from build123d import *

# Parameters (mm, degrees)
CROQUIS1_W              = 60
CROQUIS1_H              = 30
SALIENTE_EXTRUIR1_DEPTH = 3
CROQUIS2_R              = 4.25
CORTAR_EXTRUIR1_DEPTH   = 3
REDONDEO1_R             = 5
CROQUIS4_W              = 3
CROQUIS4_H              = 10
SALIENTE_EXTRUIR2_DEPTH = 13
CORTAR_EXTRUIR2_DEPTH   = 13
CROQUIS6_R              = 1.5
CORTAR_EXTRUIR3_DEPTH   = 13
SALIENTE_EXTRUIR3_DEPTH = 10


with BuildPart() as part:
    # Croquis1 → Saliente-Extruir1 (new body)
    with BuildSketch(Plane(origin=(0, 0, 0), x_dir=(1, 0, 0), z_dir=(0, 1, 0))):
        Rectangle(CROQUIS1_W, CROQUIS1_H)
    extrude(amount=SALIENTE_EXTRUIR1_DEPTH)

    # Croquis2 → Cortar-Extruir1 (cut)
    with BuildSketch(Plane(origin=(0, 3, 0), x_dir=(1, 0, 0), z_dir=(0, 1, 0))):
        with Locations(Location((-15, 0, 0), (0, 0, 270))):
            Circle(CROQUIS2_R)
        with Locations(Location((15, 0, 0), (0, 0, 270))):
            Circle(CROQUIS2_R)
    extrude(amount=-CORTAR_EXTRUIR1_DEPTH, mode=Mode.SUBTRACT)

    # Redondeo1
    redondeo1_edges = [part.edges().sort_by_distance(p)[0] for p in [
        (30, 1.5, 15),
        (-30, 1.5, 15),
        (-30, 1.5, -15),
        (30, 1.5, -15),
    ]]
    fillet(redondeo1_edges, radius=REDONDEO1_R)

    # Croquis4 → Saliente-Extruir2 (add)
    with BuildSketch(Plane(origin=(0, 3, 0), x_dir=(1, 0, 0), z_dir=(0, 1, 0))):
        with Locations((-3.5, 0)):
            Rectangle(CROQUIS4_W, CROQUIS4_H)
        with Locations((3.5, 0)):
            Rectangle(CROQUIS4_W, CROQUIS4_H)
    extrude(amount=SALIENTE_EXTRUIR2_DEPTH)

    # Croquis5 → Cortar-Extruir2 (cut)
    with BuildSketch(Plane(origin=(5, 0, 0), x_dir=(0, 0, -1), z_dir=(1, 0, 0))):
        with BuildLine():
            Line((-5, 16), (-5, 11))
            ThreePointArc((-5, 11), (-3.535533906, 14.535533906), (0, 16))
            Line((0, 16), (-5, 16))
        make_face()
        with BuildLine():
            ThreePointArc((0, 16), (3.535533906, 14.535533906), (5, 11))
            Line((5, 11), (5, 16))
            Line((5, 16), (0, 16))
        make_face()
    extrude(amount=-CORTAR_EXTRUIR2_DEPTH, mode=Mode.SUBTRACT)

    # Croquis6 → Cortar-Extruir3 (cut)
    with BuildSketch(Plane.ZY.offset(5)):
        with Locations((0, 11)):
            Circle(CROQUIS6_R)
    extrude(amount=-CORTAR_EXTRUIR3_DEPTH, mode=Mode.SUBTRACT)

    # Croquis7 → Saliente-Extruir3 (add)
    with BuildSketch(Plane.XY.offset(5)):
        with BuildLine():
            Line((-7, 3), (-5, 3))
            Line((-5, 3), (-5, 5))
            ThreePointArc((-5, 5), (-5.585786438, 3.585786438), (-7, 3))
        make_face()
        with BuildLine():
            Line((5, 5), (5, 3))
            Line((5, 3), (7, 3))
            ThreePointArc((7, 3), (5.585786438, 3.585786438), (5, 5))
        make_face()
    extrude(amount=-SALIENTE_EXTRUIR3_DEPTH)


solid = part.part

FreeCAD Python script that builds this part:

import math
import FreeCAD as App
import Part
import Sketcher


def edges_at(feature, points):
    """Names of the edges that pass closest to the given points."""
    edges = feature.Shape.Edges
    near = lambda p: min(range(len(edges)), key=lambda i: edges[i].distToShape(Part.Vertex(*p))[0])
    return sorted({f"Edge{near(p) + 1}" for p in points})


def add_polygon(sketch, points):
    """Adds a closed chain of lines whose ends are joined by coincident constraints."""
    first, n = sketch.GeometryCount, len(points)
    for a, b in zip(points, points[1:] + points[:1]):
        sketch.addGeometry(Part.LineSegment(App.Vector(*a, 0), App.Vector(*b, 0)), False)
    for i in range(n):
        sketch.addConstraint(Sketcher.Constraint("Coincident", first + i, 2, first + (i + 1) % n, 1))

doc = App.newDocument("Part")
params = doc.addObject("Spreadsheet::Sheet", "Params")
for row, (alias, value) in enumerate([
    ("sketch1_width", "60 mm"),
    ("sketch1_height", "30 mm"),
    ("pad1_length", "3 mm"),
    ("sketch2_diameter", "8.5 mm"),
    ("pocket1_length", "3 mm"),
    ("fillet_radius", "5 mm"),
    ("sketch3_width", "3 mm"),
    ("sketch3_height", "10 mm"),
    ("pad2_length", "13 mm"),
    ("sketch4_radius", "5 mm"),
    ("pocket2_length", "13 mm"),
    ("sketch5_diameter", "3 mm"),
    ("pocket3_length", "13 mm"),
    ("sketch6_radius", "2 mm"),
    ("pad3_length", "10 mm"),
], start=1):
    params.set(f"A{row}", alias)
    params.set(f"B{row}", "=" + value)
    params.setAlias(f"B{row}", alias)

body = doc.addObject("PartDesign::Body", "Body")

# Sketch on XZ plane
sketch1 = doc.addObject("Sketcher::SketchObject", "Sketch")
body.addObject(sketch1)
sketch1.AttachmentSupport = (doc.XZ_Plane, [""])
sketch1.MapMode = "FlatFace"
add_polygon(sketch1, [(-30, -15), (-30, 15), (30, 15), (30, -15)])  # lines 0-3
sketch1.addConstraint(Sketcher.Constraint("Vertical", 0))
sketch1.addConstraint(Sketcher.Constraint("Horizontal", 1))
sketch1.addConstraint(Sketcher.Constraint("Vertical", 2))
sketch1.addConstraint(Sketcher.Constraint("Horizontal", 3))
sketch1.addConstraint(Sketcher.Constraint("Symmetric", 0, 2, 2, 2, -1, 1))
sketch1.addConstraint(Sketcher.Constraint("DistanceX", 1, 1, 1, 2, 60.0))
sketch1.addConstraint(Sketcher.Constraint("DistanceY", 0, 1, 0, 2, 30.0))
sketch1.setExpression("Constraints[9]", "Params.sketch1_width")
sketch1.setExpression("Constraints[10]", "Params.sketch1_height")
pad1 = doc.addObject("PartDesign::Pad", "Pad")
body.addObject(pad1)
pad1.Profile = sketch1
pad1.setExpression("Length", "Params.pad1_length")
pad1.Reversed = True

# Sketch on XZ plane
sketch2 = doc.addObject("Sketcher::SketchObject", "Sketch001")
body.addObject(sketch2)
sketch2.AttachmentSupport = (doc.XZ_Plane, [""])
sketch2.MapMode = "FlatFace"
sketch2.AttachmentOffset = App.Placement(App.Vector(0, 0, -3), App.Rotation())
sketch2.addGeometry(Part.Circle(App.Vector(-15, 0, 0), App.Vector(0, 0, 1), 4.25), False)
sketch2.addGeometry(Part.Circle(App.Vector(15, 0, 0), App.Vector(0, 0, 1), 4.25), False)
sketch2.addConstraint(Sketcher.Constraint("Equal", 0, 1))
sketch2.addConstraint(Sketcher.Constraint("Symmetric", 0, 3, 1, 3, -1, 1))
sketch2.addConstraint(Sketcher.Constraint("PointOnObject", 0, 3, -1))
sketch2.addConstraint(Sketcher.Constraint("Diameter", 0, 8.5))
sketch2.addConstraint(Sketcher.Constraint("DistanceX", 0, 3, -1, 1, 15.0))
sketch2.setExpression("Constraints[3]", "Params.sketch2_diameter")
pocket1 = doc.addObject("PartDesign::Pocket", "Pocket")
body.addObject(pocket1)
pocket1.Profile = sketch2
pocket1.setExpression("Length", "Params.pocket1_length")
pocket1.Reversed = True
doc.recompute()

fillet = doc.addObject("PartDesign::Fillet", "Fillet")
body.addObject(fillet)
fillet.Base = (pocket1, edges_at(pocket1, [
    (30, 1.5, 15),
    (-30, 1.5, 15),
    (-30, 1.5, -15),
    (30, 1.5, -15),
]))
fillet.setExpression("Radius", "Params.fillet_radius")

# Sketch on XZ plane
sketch3 = doc.addObject("Sketcher::SketchObject", "Sketch002")
body.addObject(sketch3)
sketch3.AttachmentSupport = (doc.XZ_Plane, [""])
sketch3.MapMode = "FlatFace"
sketch3.AttachmentOffset = App.Placement(App.Vector(0, 0, -3), App.Rotation())
add_polygon(sketch3, [(-5, -5), (-5, 5), (-2, 5), (-2, -5)])  # lines 0-3
add_polygon(sketch3, [(2, -5), (2, 5), (5, 5), (5, -5)])  # lines 4-7
sketch3.addConstraint(Sketcher.Constraint("Vertical", 0))
sketch3.addConstraint(Sketcher.Constraint("Horizontal", 1))
sketch3.addConstraint(Sketcher.Constraint("Vertical", 2))
sketch3.addConstraint(Sketcher.Constraint("Horizontal", 3))
sketch3.addConstraint(Sketcher.Constraint("Vertical", 4))
sketch3.addConstraint(Sketcher.Constraint("Horizontal", 5))
sketch3.addConstraint(Sketcher.Constraint("Vertical", 6))
sketch3.addConstraint(Sketcher.Constraint("Horizontal", 7))
sketch3.addConstraint(Sketcher.Constraint("Symmetric", 2, 2, 4, 2, -1, 1))
sketch3.addConstraint(Sketcher.Constraint("Symmetric", 0, 2, 6, 2, -1, 1))
sketch3.addConstraint(Sketcher.Constraint("Horizontal", 1, 2, 4, 2))
sketch3.addConstraint(Sketcher.Constraint("DistanceX", 1, 1, 1, 2, 3.0))
sketch3.addConstraint(Sketcher.Constraint("DistanceY", 0, 1, 0, 2, 10.0))
sketch3.addConstraint(Sketcher.Constraint("DistanceX", 0, 2, -1, 1, 5.0))
sketch3.setExpression("Constraints[19]", "Params.sketch3_width")
sketch3.setExpression("Constraints[20]", "Params.sketch3_height")
pad2 = doc.addObject("PartDesign::Pad", "Pad001")
body.addObject(pad2)
pad2.Profile = sketch3
pad2.setExpression("Length", "Params.pad2_length")
pad2.Reversed = True

# Sketch on YZ plane
sketch4 = doc.addObject("Sketcher::SketchObject", "Sketch003")
body.addObject(sketch4)
sketch4.AttachmentSupport = (doc.YZ_Plane, [""])
sketch4.MapMode = "FlatFace"
sketch4.AttachmentOffset = App.Placement(App.Vector(0, 0, 5), App.Rotation())
sketch4.addGeometry(Part.LineSegment(App.Vector(16, 5, 0), App.Vector(11, 5, 0)), False)
sketch4.addGeometry(Part.ArcOfCircle(Part.Circle(App.Vector(11, 0, 0), App.Vector(0, 0, 1), 5), math.radians(0), math.radians(90)), False)
sketch4.addGeometry(Part.LineSegment(App.Vector(16, 0, 0), App.Vector(16, 5, 0)), False)
sketch4.addGeometry(Part.ArcOfCircle(Part.Circle(App.Vector(11, 0, 0), App.Vector(0, 0, 1), 5), math.radians(-90), math.radians(0)), False)
sketch4.addGeometry(Part.LineSegment(App.Vector(11, -5, 0), App.Vector(16, -5, 0)), False)
sketch4.addGeometry(Part.LineSegment(App.Vector(16, -5, 0), App.Vector(16, 0, 0)), False)
sketch4.addConstraint(Sketcher.Constraint("Tangent", 0, 2, 1, 2))
sketch4.addConstraint(Sketcher.Constraint("Tangent", 1, 1, 2, 1))
sketch4.addConstraint(Sketcher.Constraint("Coincident", 2, 2, 0, 1))
sketch4.addConstraint(Sketcher.Constraint("Tangent", 3, 1, 4, 1))
sketch4.addConstraint(Sketcher.Constraint("Coincident", 4, 2, 5, 1))
sketch4.addConstraint(Sketcher.Constraint("Tangent", 5, 2, 3, 2))
sketch4.addConstraint(Sketcher.Constraint("Horizontal", 0))
sketch4.addConstraint(Sketcher.Constraint("Vertical", 2))
sketch4.addConstraint(Sketcher.Constraint("Horizontal", 4))
sketch4.addConstraint(Sketcher.Constraint("Vertical", 5))
sketch4.addConstraint(Sketcher.Constraint("Coincident", 3, 3, 1, 3))
sketch4.addConstraint(Sketcher.Constraint("Equal", 1, 3))
sketch4.addConstraint(Sketcher.Constraint("PointOnObject", 1, 3, -1))
sketch4.addConstraint(Sketcher.Constraint("Radius", 1, 5.0))
sketch4.addConstraint(Sketcher.Constraint("DistanceX", -1, 1, 1, 3, 11.0))
sketch4.setExpression("Constraints[13]", "Params.sketch4_radius")
pocket2 = doc.addObject("PartDesign::Pocket", "Pocket001")
body.addObject(pocket2)
pocket2.Profile = sketch4
pocket2.setExpression("Length", "Params.pocket2_length")

# Sketch on YZ plane
sketch5 = doc.addObject("Sketcher::SketchObject", "Sketch004")
body.addObject(sketch5)
sketch5.AttachmentSupport = (doc.YZ_Plane, [""])
sketch5.MapMode = "FlatFace"
sketch5.AttachmentOffset = App.Placement(App.Vector(0, 0, -5), App.Rotation())
sketch5.addGeometry(Part.Circle(App.Vector(11, 0, 0), App.Vector(0, 0, 1), 1.5), False)
sketch5.addConstraint(Sketcher.Constraint("PointOnObject", 0, 3, -1))
sketch5.addConstraint(Sketcher.Constraint("Diameter", 0, 3.0))
sketch5.addConstraint(Sketcher.Constraint("DistanceX", -1, 1, 0, 3, 11.0))
sketch5.setExpression("Constraints[1]", "Params.sketch5_diameter")
pocket3 = doc.addObject("PartDesign::Pocket", "Pocket002")
body.addObject(pocket3)
pocket3.Profile = sketch5
pocket3.setExpression("Length", "Params.pocket3_length")
pocket3.Reversed = True

# Sketch on XY plane
sketch6 = doc.addObject("Sketcher::SketchObject", "Sketch005")
body.addObject(sketch6)
sketch6.AttachmentSupport = (doc.XY_Plane, [""])
sketch6.MapMode = "FlatFace"
sketch6.AttachmentOffset = App.Placement(App.Vector(0, 0, 5), App.Rotation())
sketch6.addGeometry(Part.LineSegment(App.Vector(-7, 3, 0), App.Vector(-5, 3, 0)), False)
sketch6.addGeometry(Part.LineSegment(App.Vector(-5, 3, 0), App.Vector(-5, 5, 0)), False)
sketch6.addGeometry(Part.ArcOfCircle(Part.Circle(App.Vector(-7, 5, 0), App.Vector(0, 0, 1), 2), math.radians(-90), math.radians(0)), False)
sketch6.addGeometry(Part.LineSegment(App.Vector(5, 5, 0), App.Vector(5, 3, 0)), False)
sketch6.addGeometry(Part.LineSegment(App.Vector(5, 3, 0), App.Vector(7, 3, 0)), False)
sketch6.addGeometry(Part.ArcOfCircle(Part.Circle(App.Vector(7, 5, 0), App.Vector(0, 0, 1), 2), math.radians(-180), math.radians(-90)), False)
sketch6.addConstraint(Sketcher.Constraint("Coincident", 0, 2, 1, 1))
sketch6.addConstraint(Sketcher.Constraint("Tangent", 1, 2, 2, 2))
sketch6.addConstraint(Sketcher.Constraint("Tangent", 2, 1, 0, 1))
sketch6.addConstraint(Sketcher.Constraint("Coincident", 3, 2, 4, 1))
sketch6.addConstraint(Sketcher.Constraint("Tangent", 4, 2, 5, 2))
sketch6.addConstraint(Sketcher.Constraint("Tangent", 5, 1, 3, 1))
sketch6.addConstraint(Sketcher.Constraint("Horizontal", 0))
sketch6.addConstraint(Sketcher.Constraint("Vertical", 1))
sketch6.addConstraint(Sketcher.Constraint("Vertical", 3))
sketch6.addConstraint(Sketcher.Constraint("Horizontal", 4))
sketch6.addConstraint(Sketcher.Constraint("Equal", 2, 5))
sketch6.addConstraint(Sketcher.Constraint("Symmetric", 2, 3, 5, 3, -2))
sketch6.addConstraint(Sketcher.Constraint("Radius", 2, 2.0))
sketch6.addConstraint(Sketcher.Constraint("DistanceX", 2, 3, -1, 1, 7.0))
sketch6.addConstraint(Sketcher.Constraint("DistanceY", -1, 1, 2, 3, 5.0))
sketch6.setExpression("Constraints[12]", "Params.sketch6_radius")
pad3 = doc.addObject("PartDesign::Pad", "Pad002")
body.addObject(pad3)
pad3.Profile = sketch6
pad3.setExpression("Length", "Params.pad3_length")
pad3.Reversed = True

doc.recompute()
